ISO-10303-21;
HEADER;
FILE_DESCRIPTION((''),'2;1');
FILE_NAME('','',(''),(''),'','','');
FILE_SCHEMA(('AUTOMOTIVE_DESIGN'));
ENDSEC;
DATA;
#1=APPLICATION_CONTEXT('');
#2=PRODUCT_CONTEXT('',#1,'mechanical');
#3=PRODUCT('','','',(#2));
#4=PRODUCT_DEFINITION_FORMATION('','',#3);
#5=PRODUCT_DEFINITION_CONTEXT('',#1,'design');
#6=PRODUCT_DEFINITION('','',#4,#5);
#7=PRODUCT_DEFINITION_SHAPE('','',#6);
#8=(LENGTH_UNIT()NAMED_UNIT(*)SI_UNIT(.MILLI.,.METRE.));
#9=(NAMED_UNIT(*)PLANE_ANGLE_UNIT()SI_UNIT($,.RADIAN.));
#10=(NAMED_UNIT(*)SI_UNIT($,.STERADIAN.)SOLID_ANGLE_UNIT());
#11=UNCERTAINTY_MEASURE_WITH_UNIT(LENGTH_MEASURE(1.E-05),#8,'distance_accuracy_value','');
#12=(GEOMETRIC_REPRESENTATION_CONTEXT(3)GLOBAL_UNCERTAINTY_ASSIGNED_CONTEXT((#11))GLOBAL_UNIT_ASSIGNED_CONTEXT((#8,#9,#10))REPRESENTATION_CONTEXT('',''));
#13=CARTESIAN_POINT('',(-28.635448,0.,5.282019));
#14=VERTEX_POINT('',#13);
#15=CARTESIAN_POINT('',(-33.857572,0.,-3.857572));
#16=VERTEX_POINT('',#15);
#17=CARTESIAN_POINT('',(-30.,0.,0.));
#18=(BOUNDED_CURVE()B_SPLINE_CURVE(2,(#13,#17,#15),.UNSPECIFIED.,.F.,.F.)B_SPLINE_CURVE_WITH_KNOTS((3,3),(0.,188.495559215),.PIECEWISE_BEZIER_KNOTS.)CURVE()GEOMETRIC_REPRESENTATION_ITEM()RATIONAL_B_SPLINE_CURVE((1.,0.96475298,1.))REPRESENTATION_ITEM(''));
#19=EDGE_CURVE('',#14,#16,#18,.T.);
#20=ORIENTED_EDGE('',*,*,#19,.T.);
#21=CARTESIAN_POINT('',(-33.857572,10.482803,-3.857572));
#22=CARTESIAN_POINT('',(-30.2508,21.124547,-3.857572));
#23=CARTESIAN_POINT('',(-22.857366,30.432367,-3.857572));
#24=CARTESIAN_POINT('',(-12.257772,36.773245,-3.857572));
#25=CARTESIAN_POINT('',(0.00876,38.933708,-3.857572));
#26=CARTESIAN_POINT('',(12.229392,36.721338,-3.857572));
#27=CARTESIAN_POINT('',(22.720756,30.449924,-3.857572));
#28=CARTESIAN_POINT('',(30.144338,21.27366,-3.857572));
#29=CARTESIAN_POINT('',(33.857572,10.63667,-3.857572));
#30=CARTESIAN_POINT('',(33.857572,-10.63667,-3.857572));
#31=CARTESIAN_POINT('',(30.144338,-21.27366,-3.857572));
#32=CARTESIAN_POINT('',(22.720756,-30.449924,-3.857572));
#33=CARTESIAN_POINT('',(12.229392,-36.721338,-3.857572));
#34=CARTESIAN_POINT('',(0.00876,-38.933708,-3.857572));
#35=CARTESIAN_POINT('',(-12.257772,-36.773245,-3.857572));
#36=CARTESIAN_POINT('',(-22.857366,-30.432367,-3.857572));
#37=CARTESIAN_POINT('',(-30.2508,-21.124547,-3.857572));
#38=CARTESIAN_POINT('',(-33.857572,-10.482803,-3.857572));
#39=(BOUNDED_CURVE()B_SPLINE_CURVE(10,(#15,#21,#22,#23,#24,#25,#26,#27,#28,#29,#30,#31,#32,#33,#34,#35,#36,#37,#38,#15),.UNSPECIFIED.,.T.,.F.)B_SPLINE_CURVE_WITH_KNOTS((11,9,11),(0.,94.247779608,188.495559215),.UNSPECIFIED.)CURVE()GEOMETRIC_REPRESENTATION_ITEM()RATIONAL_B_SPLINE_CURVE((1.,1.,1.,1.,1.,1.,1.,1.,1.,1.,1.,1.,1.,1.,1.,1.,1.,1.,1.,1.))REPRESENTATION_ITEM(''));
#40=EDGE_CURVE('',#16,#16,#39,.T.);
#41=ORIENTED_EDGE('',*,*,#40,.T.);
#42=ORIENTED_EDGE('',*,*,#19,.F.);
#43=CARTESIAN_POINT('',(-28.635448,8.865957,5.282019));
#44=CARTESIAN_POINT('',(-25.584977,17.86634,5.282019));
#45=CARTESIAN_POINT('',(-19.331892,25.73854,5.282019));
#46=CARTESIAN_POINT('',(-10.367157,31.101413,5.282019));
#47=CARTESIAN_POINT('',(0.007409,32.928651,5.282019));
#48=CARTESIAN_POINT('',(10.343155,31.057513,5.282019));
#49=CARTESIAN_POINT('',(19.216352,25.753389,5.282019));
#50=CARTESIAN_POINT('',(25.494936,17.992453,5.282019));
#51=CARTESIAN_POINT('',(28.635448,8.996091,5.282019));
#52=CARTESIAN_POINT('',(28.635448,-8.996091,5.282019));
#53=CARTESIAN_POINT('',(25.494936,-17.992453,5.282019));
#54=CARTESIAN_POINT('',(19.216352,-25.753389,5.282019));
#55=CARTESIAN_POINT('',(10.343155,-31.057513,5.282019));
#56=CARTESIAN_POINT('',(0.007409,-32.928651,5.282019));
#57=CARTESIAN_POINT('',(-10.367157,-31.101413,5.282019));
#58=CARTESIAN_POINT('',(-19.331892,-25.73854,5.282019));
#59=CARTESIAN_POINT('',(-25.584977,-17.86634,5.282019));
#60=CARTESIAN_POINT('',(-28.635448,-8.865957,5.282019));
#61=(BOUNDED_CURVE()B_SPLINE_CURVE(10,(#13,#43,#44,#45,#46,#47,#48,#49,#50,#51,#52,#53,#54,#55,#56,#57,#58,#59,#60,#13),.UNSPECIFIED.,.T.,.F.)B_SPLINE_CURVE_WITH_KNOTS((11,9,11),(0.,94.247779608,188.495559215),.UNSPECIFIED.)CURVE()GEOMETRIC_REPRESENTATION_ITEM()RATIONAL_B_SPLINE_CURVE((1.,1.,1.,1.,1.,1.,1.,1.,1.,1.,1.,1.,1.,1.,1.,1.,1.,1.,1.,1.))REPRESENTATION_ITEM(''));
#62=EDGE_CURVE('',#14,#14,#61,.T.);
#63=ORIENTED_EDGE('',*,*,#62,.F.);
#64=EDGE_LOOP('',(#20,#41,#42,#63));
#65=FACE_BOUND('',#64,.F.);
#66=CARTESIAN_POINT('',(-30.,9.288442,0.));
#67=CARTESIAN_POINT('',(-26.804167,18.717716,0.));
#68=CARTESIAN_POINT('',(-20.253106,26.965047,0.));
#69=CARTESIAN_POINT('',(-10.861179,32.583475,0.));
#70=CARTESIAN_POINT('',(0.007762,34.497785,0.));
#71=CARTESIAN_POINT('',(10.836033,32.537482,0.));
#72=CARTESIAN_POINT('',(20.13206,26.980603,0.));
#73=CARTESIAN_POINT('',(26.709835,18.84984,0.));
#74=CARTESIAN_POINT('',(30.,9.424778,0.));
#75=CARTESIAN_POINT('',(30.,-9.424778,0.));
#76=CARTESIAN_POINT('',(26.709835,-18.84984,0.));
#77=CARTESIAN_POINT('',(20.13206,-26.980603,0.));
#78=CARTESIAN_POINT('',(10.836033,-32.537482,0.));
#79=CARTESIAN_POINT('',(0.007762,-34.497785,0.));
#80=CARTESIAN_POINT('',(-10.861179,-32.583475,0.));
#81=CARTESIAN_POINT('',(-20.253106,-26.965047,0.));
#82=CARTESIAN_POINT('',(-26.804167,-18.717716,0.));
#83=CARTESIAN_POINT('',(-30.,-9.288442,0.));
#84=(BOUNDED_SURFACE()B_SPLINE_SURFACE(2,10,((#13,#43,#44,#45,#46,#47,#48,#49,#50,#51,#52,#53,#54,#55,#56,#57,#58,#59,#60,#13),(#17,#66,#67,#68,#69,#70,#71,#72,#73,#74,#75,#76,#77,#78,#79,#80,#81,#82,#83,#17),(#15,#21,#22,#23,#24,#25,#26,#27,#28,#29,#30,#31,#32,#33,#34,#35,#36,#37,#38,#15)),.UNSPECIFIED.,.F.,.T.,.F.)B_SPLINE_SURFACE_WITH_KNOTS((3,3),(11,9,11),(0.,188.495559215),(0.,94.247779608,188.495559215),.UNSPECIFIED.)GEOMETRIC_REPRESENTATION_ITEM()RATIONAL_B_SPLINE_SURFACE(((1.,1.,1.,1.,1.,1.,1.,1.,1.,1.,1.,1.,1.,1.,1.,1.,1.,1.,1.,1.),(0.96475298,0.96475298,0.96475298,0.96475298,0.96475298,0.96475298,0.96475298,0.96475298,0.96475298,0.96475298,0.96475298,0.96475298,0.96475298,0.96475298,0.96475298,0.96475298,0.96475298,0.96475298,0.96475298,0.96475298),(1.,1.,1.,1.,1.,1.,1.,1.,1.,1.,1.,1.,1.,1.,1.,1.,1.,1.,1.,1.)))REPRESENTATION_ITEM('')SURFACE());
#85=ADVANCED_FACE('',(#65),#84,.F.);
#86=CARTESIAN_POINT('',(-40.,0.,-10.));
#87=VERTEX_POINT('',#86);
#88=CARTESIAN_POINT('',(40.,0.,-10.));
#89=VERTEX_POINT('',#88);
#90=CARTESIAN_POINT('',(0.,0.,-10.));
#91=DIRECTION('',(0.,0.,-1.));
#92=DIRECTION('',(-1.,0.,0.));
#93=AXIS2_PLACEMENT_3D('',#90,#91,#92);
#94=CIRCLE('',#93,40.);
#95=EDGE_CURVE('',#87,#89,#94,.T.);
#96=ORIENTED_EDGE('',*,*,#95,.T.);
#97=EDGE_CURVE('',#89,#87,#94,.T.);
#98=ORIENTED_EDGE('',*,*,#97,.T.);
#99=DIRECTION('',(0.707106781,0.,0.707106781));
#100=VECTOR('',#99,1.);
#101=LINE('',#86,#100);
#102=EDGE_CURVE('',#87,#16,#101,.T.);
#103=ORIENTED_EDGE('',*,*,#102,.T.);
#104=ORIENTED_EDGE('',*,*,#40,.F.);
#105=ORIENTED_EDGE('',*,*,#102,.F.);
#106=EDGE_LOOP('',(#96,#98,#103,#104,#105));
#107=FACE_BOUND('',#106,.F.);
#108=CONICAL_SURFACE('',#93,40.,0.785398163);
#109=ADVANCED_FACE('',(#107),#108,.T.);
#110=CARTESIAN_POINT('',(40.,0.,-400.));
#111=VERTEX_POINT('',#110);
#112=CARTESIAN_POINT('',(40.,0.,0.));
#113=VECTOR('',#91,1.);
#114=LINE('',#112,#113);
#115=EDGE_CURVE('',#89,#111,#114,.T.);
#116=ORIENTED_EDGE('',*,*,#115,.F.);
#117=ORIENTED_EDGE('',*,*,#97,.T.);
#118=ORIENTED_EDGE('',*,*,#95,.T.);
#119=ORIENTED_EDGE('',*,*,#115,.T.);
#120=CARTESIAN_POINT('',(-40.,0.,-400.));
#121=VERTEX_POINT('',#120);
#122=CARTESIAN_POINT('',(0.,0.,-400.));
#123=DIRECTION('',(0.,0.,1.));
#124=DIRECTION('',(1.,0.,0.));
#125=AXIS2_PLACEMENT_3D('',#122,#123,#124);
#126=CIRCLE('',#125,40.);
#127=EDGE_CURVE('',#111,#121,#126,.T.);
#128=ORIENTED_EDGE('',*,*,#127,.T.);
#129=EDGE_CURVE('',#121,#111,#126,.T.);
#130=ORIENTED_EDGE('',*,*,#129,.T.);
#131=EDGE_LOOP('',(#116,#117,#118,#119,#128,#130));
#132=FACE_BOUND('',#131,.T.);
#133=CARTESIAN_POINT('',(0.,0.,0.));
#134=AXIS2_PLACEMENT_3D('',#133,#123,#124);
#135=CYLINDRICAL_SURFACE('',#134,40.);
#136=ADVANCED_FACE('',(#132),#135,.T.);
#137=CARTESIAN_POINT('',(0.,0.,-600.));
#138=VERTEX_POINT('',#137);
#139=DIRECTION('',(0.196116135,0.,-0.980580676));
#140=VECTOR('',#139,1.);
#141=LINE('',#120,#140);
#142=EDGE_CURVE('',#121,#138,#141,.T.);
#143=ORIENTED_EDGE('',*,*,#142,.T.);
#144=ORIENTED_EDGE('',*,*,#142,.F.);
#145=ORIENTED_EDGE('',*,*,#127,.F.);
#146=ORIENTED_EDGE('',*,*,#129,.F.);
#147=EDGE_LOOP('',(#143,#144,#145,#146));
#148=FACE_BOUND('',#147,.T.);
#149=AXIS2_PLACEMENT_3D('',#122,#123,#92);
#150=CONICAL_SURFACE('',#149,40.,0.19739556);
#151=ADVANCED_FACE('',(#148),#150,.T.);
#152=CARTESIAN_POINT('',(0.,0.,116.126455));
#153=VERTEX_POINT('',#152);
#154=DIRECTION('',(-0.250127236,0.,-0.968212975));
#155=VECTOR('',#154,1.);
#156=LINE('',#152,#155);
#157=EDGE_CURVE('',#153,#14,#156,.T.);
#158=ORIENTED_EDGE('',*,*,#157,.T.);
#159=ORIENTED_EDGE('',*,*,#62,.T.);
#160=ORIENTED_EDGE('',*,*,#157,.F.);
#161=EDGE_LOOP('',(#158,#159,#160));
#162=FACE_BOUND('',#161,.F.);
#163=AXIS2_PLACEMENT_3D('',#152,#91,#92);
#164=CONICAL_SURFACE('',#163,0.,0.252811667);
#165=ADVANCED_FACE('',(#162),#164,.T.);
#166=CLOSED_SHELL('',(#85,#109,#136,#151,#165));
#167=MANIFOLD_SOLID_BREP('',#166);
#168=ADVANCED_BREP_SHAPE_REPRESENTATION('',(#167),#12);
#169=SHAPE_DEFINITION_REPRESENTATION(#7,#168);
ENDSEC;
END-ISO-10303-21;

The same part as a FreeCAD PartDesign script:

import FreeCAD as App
import Part
import Sketcher
from FreeCAD import Vector


def edges_at(feature, points):
    """Names of the edges that pass closest to the given points."""
    edges = feature.Shape.Edges
    near = lambda p: min(range(len(edges)), key=lambda i: edges[i].distToShape(Part.Vertex(*p))[0])
    return sorted({f"Edge{near(p) + 1}" for p in points})

doc = App.newDocument("Part")
body = doc.addObject("PartDesign::Body", "Body")

# Sketch on XY plane
sketch1 = body.newObject("Sketcher::SketchObject", "Sketch")
sketch1.AttachmentSupport = (doc.getObject("XY_Plane"), [""])
sketch1.MapMode = "FlatFace"
sketch1.addGeometry(Part.Circle(Vector(0, 0, 0), Vector(0, 0, 1), 40), False)
sketch1.addConstraint([
    Sketcher.Constraint("Coincident", 0, 3, -1, 1),
    Sketcher.Constraint("Diameter", 0, 80.0),
])
pad1 = body.newObject("PartDesign::Pad", "Pad")
pad1.Profile = sketch1
pad1.Length = 400
pad1.Reversed = True

# Sketch on XZ plane
sketch2 = body.newObject("Sketcher::SketchObject", "Sketch001")
sketch2.AttachmentSupport = (doc.getObject("XZ_Plane"), [""])
sketch2.MapMode = "FlatFace"
sketch2.addGeometry([
    Part.LineSegment(Vector(-40, 0, 0), Vector(-40, -10, 0)),
    Part.LineSegment(Vector(-40, -10, 0), Vector(-30, 0, 0)),
    Part.LineSegment(Vector(-30, 0, 0), Vector(-40, 0, 0)),
], False)
sketch2.addConstraint([
    Sketcher.Constraint("Coincident", 0, 2, 1, 1),
    Sketcher.Constraint("Coincident", 1, 2, 2, 1),
    Sketcher.Constraint("Coincident", 2, 2, 0, 1),
    Sketcher.Constraint("Vertical", 0),
    Sketcher.Constraint("Horizontal", 2),
    Sketcher.Constraint("PointOnObject", 1, 2, -1),
    Sketcher.Constraint("Equal", 2, 0),
    Sketcher.Constraint("DistanceX", 2, 2, 2, 1, 10.0),
    Sketcher.Constraint("DistanceX", 0, 2, -1, 1, 40.0),
])
groove = body.newObject("PartDesign::Groove", "Groove")
groove.Profile = sketch2
groove.ReferenceAxis = (sketch2, ["V_Axis"])
groove.Angle = 360

# Sketch on XZ plane
sketch3 = body.newObject("Sketcher::SketchObject", "Sketch002")
sketch3.AttachmentSupport = (doc.getObject("XZ_Plane"), [""])
sketch3.MapMode = "FlatFace"
sketch3.addGeometry([
    Part.LineSegment(Vector(-30, 0, 0), Vector(0, 0, 0)),
    Part.LineSegment(Vector(0, 0, 0), Vector(0, 116.126455, 0)),
    Part.LineSegment(Vector(0, 116.126455, 0), Vector(-30, 0, 0)),
], False)
sketch3.addConstraint([
    Sketcher.Constraint("Coincident", 0, 2, 1, 1),
    Sketcher.Constraint("Coincident", 1, 2, 2, 1),
    Sketcher.Constraint("Coincident", 2, 2, 0, 1),
    Sketcher.Constraint("Horizontal", 0),
    Sketcher.Constraint("Vertical", 1),
    Sketcher.Constraint("Coincident", 0, 2, -1, 1),
    Sketcher.Constraint("DistanceX", 0, 1, 0, 2, 30.0),
    Sketcher.Constraint("DistanceY", 1, 1, 1, 2, 116.126455),
])
revolution = body.newObject("PartDesign::Revolution", "Revolution")
revolution.Profile = sketch3
revolution.ReferenceAxis = (sketch3, ["V_Axis"])
revolution.Angle = 360
doc.recompute()

fillet = body.newObject("PartDesign::Fillet", "Fillet")
fillet.Base = (revolution, edges_at(revolution, [(30, 0, 0)]))
fillet.Radius = 20

# Sketch on XZ plane
sketch4 = body.newObject("Sketcher::SketchObject", "Sketch003")
sketch4.AttachmentSupport = (doc.getObject("XZ_Plane"), [""])
sketch4.MapMode = "FlatFace"
sketch4.addGeometry([
    Part.LineSegment(Vector(0, -400, 0), Vector(-40, -400, 0)),
    Part.LineSegment(Vector(-40, -400, 0), Vector(0, -600, 0)),
    Part.LineSegment(Vector(0, -600, 0), Vector(0, -400, 0)),
], False)
sketch4.addConstraint([
    Sketcher.Constraint("Coincident", 0, 2, 1, 1),
    Sketcher.Constraint("Coincident", 1, 2, 2, 1),
    Sketcher.Constraint("Coincident", 2, 2, 0, 1),
    Sketcher.Constraint("Horizontal", 0),
    Sketcher.Constraint("Vertical", 2),
    Sketcher.Constraint("PointOnObject", 1, 2, -2),
    Sketcher.Constraint("DistanceX", 0, 2, 0, 1, 40.0),
    Sketcher.Constraint("DistanceY", 2, 1, 2, 2, 200.0),
    Sketcher.Constraint("DistanceY", 0, 2, -1, 1, 400.0),
])
revolution2 = body.newObject("PartDesign::Revolution", "Revolution001")
revolution2.Profile = sketch4
revolution2.ReferenceAxis = (sketch4, ["V_Axis"])
revolution2.Angle = 360

doc.recompute()
